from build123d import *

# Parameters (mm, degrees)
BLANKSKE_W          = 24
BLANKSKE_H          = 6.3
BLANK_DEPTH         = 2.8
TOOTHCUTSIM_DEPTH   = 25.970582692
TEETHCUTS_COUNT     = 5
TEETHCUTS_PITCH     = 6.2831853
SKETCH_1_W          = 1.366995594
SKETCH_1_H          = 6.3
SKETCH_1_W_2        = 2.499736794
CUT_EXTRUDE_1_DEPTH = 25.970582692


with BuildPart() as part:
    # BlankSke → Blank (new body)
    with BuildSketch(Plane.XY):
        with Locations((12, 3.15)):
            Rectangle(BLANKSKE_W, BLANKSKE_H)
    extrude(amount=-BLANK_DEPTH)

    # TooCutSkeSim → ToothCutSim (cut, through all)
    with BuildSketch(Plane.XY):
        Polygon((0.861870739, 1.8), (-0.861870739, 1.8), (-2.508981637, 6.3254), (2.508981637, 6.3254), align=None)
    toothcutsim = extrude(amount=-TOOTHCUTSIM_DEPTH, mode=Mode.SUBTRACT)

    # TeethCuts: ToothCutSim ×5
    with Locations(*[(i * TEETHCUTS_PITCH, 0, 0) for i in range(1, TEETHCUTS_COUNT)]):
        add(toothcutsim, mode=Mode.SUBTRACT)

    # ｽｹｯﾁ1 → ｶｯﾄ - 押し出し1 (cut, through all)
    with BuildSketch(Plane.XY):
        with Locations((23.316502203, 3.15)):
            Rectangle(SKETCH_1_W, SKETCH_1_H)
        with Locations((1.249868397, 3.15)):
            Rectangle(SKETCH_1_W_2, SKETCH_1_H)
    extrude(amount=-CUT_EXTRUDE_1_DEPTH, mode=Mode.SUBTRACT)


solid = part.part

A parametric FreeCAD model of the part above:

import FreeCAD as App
import Part
import Sketcher
Q = App.Units.Quantity


def add_polygon(sketch, points):
    """Adds a closed chain of lines whose ends are joined by coincident constraints."""
    first, n = sketch.GeometryCount, len(points)
    for a, b in zip(points, points[1:] + points[:1]):
        sketch.addGeometry(Part.LineSegment(App.Vector(*a, 0), App.Vector(*b, 0)), False)
    for i in range(n):
        sketch.addConstraint(Sketcher.Constraint("Coincident", first + i, 2, first + (i + 1) % n, 1))

doc = App.newDocument("Part")
params = doc.addObject("Spreadsheet::Sheet", "Params")
for row, (alias, value) in enumerate([
    ("sketch1_width", "24 mm"),
    ("sketch1_height", "6.3 mm"),
    ("pad1_length", "2.8 mm"),
    ("linearpattern_pitch", "6.283185 mm"),
    ("sketch3_height", "6.3 mm"),
], start=1):
    params.set(f"A{row}", alias)
    params.set(f"B{row}", "=" + value)
    params.setAlias(f"B{row}", alias)

body = doc.addObject("PartDesign::Body", "Body")

# Sketch on XY plane
sketch1 = body.newObject("Sketcher::SketchObject", "Sketch")
sketch1.AttachmentSupport = (doc.getObject("XY_Plane"), [""])
sketch1.MapMode = "FlatFace"
add_polygon(sketch1, [(0, 6), (0, 0), (24, 0), (24, 6)])  # lines 0-3
sketch1.addConstraint(Sketcher.Constraint("Vertical", 0))
sketch1.addConstraint(Sketcher.Constraint("Horizontal", 1))
sketch1.addConstraint(Sketcher.Constraint("Vertical", 2))
sketch1.addConstraint(Sketcher.Constraint("Horizontal", 3))
sketch1.addConstraint(Sketcher.Constraint("Coincident", 0, 2, -1, 1))
sketch1.addConstraint(Sketcher.Constraint("DistanceX", 1, 1, 1, 2, 24.0))
sketch1.addConstraint(Sketcher.Constraint("DistanceY", 0, 2, 0, 1, 6.3))
sketch1.setExpression("Constraints[9]", "Params.sketch1_width")
sketch1.setExpression("Constraints[10]", "Params.sketch1_height")
pad1 = body.newObject("PartDesign::Pad", "Pad")
pad1.Profile = sketch1
pad1.setExpression("Length", "Params.pad1_length")
pad1.Reversed = True

# Sketch on XY plane
sketch2 = body.newObject("Sketcher::SketchObject", "Sketch001")
sketch2.AttachmentSupport = (doc.getObject("XY_Plane"), [""])
sketch2.MapMode = "FlatFace"
add_polygon(sketch2, [(-0.9, 1.8), (0.9, 1.8), (2.5, 6.3), (-2.5, 6.3)])  # lines 0-3
sketch2.addConstraint(Sketcher.Constraint("Horizontal", 0))
sketch2.addConstraint(Sketcher.Constraint("Horizontal", 2))
sketch2.addConstraint(Sketcher.Constraint("Equal", 1, 3))
sketch2.addConstraint(Sketcher.Constraint("Angle", 1, Q("70 deg")))
sketch2.addConstraint(Sketcher.Constraint("DistanceY", -1, 1, 0, 2, 1.8))
sketch2.addConstraint(Sketcher.Constraint("DistanceX", 0, 1, 0, 2, 1.723741))
sketch2.addConstraint(Sketcher.Constraint("DistanceY", -1, 1, 1, 2, 6.3254))
sketch2.addConstraint(Sketcher.Constraint("DistanceX", -1, 1, 0, 2, 0.861871))
pocket1 = body.newObject("PartDesign::Pocket", "Pocket")
pocket1.Profile = sketch2
pocket1.Type = "ThroughAll"
doc.recompute()

linearpattern = body.newObject("PartDesign::LinearPattern", "LinearPattern")
linearpattern.Originals = [pocket1]
linearpattern.Direction = (doc.getObject("X_Axis"), [""])
linearpattern.Mode = "offset"
linearpattern.setExpression("Offset", "Params.linearpattern_pitch")
linearpattern.Occurrences = 5
body.Tip = linearpattern

# Sketch on XY plane
sketch3 = body.newObject("Sketcher::SketchObject", "Sketch002")
sketch3.AttachmentSupport = (doc.getObject("XY_Plane"), [""])
sketch3.MapMode = "FlatFace"
add_polygon(sketch3, [(22.6, 6.3), (22.6, 0), (24, 0), (24, 6.3)])  # lines 0-3
add_polygon(sketch3, [(0, 6.3), (0, 0), (2.5, 0), (2.5, 6.3)])  # lines 4-7
sketch3.addConstraint(Sketcher.Constraint("Vertical", 0))
sketch3.addConstraint(Sketcher.Constraint("Horizontal", 1))
sketch3.addConstraint(Sketcher.Constraint("Vertical", 2))
sketch3.addConstraint(Sketcher.Constraint("Horizontal", 3))
sketch3.addConstraint(Sketcher.Constraint("Vertical", 4))
sketch3.addConstraint(Sketcher.Constraint("Horizontal", 5))
sketch3.addConstraint(Sketcher.Constraint("Vertical", 6))
sketch3.addConstraint(Sketcher.Constraint("Horizontal", 7))
sketch3.addConstraint(Sketcher.Constraint("Coincident", 4, 2, -1, 1))
sketch3.addConstraint(Sketcher.Constraint("PointOnObject", 0, 2, -1))
sketch3.addConstraint(Sketcher.Constraint("Horizontal", 3, 2, 6, 2))
sketch3.addConstraint(Sketcher.Constraint("DistanceY", 0, 2, 0, 1, 6.3))
sketch3.addConstraint(Sketcher.Constraint("DistanceX", -1, 1, 1, 2, 24.0))
sketch3.addConstraint(Sketcher.Constraint("DistanceX", 1, 1, 1, 2, 1.366996))
sketch3.addConstraint(Sketcher.Constraint("DistanceX", 5, 1, 5, 2, 2.499737))
sketch3.setExpression("Constraints[19]", "Params.sketch3_height")
pocket2 = body.newObject("PartDesign::Pocket", "Pocket001")
pocket2.Profile = sketch3
pocket2.Type = "ThroughAll"

doc.recompute()
